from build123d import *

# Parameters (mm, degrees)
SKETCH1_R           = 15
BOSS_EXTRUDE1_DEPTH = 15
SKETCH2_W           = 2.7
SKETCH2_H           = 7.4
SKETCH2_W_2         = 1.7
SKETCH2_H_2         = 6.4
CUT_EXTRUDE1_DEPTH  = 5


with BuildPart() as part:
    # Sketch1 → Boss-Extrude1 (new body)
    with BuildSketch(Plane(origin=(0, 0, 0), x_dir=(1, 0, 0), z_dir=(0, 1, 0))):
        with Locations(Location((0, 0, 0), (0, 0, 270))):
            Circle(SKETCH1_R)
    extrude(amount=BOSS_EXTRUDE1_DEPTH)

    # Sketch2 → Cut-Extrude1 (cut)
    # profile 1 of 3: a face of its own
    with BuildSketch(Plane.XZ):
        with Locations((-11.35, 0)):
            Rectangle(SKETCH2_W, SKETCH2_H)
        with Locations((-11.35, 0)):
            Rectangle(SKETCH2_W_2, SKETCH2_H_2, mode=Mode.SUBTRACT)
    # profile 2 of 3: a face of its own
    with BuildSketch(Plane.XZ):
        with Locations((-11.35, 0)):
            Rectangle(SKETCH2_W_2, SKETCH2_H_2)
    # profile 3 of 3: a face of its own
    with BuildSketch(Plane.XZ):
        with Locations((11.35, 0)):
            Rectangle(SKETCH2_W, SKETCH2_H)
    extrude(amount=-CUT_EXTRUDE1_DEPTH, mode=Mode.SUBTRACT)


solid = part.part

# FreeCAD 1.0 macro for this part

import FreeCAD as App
import Part
import Sketcher
from FreeCAD import Vector
Q = App.Units.Quantity

doc = App.newDocument("Part")
body = doc.addObject("PartDesign::Body", "Body")

sketch1 = body.newObject("Sketcher::SketchObject", "Sketch")
sketch1.AttachmentSupport = (doc.getObject("XZ_Plane"), [""])
sketch1.MapMode = "FlatFace"
sketch1.addGeometry(Part.Circle(Vector(0, 0, 0), Vector(0, 0, 1), 15), False)
sketch1.addConstraint(Sketcher.Constraint("Coincident", 0, 3, -1, 1))
sketch1.addConstraint(Sketcher.Constraint("Diameter", 0, Q("30 mm")))
pad1 = body.newObject("PartDesign::Pad", "Pad")
pad1.Profile = sketch1
pad1.Length = 15
pad1.Reversed = True

sketch2 = body.newObject("Sketcher::SketchObject", "Sketch001")
sketch2.AttachmentSupport = (doc.getObject("XZ_Plane"), [""])
sketch2.MapMode = "FlatFace"
sketch2.addGeometry(Part.LineSegment(Vector(-12.7, 3.7, 0), Vector(-12.7, -3.7, 0)), False)
sketch2.addGeometry(Part.LineSegment(Vector(-12.7, -3.7, 0), Vector(-10, -3.7, 0)), False)
sketch2.addGeometry(Part.LineSegment(Vector(-10, -3.7, 0), Vector(-10, 3.7, 0)), False)
sketch2.addGeometry(Part.LineSegment(Vector(-10, 3.7, 0), Vector(-12.7, 3.7, 0)), False)
sketch2.addGeometry(Part.LineSegment(Vector(10, 3.7, 0), Vector(10, -3.7, 0)), False)
sketch2.addGeometry(Part.LineSegment(Vector(10, -3.7, 0), Vector(12.7, -3.7, 0)), False)
sketch2.addGeometry(Part.LineSegment(Vector(12.7, -3.7, 0), Vector(12.7, 3.7, 0)), False)
sketch2.addGeometry(Part.LineSegment(Vector(12.7, 3.7, 0), Vector(10, 3.7, 0)), False)
sketch2.addConstraint(Sketcher.Constraint("Coincident", 0, 2, 1, 1))
sketch2.addConstraint(Sketcher.Constraint("Coincident", 1, 2, 2, 1))
sketch2.addConstraint(Sketcher.Constraint("Coincident", 2, 2, 3, 1))
sketch2.addConstraint(Sketcher.Constraint("Coincident", 3, 2, 0, 1))
sketch2.addConstraint(Sketcher.Constraint("Coincident", 4, 2, 5, 1))
sketch2.addConstraint(Sketcher.Constraint("Coincident", 5, 2, 6, 1))
sketch2.addConstraint(Sketcher.Constraint("Coincident", 6, 2, 7, 1))
sketch2.addConstraint(Sketcher.Constraint("Coincident", 7, 2, 4, 1))
sketch2.addConstraint(Sketcher.Constraint("Vertical", 0))
sketch2.addConstraint(Sketcher.Constraint("Horizontal", 1))
sketch2.addConstraint(Sketcher.Constraint("Vertical", 2))
sketch2.addConstraint(Sketcher.Constraint("Horizontal", 3))
sketch2.addConstraint(Sketcher.Constraint("Vertical", 4))
sketch2.addConstraint(Sketcher.Constraint("Horizontal", 5))
sketch2.addConstraint(Sketcher.Constraint("Vertical", 6))
sketch2.addConstraint(Sketcher.Constraint("Horizontal", 7))
sketch2.addConstraint(Sketcher.Constraint("Symmetric", 2, 2, 4, 2, -1, 1))
sketch2.addConstraint(Sketcher.Constraint("Symmetric", 0, 2, 6, 2, -1, 1))
sketch2.addConstraint(Sketcher.Constraint("Horizontal", 1, 2, 4, 2))
sketch2.addConstraint(Sketcher.Constraint("DistanceX", 1, 1, 1, 2, Q("2.7 mm")))
sketch2.addConstraint(Sketcher.Constraint("DistanceY", 0, 2, 0, 1, Q("7.4 mm")))
sketch2.addConstraint(Sketcher.Constraint("DistanceX", 1, 2, -1, 1, Q("10 mm")))
pocket1 = body.newObject("PartDesign::Pocket", "Pocket")
pocket1.Profile = sketch2
pocket1.Length = 5

doc.recompute()
